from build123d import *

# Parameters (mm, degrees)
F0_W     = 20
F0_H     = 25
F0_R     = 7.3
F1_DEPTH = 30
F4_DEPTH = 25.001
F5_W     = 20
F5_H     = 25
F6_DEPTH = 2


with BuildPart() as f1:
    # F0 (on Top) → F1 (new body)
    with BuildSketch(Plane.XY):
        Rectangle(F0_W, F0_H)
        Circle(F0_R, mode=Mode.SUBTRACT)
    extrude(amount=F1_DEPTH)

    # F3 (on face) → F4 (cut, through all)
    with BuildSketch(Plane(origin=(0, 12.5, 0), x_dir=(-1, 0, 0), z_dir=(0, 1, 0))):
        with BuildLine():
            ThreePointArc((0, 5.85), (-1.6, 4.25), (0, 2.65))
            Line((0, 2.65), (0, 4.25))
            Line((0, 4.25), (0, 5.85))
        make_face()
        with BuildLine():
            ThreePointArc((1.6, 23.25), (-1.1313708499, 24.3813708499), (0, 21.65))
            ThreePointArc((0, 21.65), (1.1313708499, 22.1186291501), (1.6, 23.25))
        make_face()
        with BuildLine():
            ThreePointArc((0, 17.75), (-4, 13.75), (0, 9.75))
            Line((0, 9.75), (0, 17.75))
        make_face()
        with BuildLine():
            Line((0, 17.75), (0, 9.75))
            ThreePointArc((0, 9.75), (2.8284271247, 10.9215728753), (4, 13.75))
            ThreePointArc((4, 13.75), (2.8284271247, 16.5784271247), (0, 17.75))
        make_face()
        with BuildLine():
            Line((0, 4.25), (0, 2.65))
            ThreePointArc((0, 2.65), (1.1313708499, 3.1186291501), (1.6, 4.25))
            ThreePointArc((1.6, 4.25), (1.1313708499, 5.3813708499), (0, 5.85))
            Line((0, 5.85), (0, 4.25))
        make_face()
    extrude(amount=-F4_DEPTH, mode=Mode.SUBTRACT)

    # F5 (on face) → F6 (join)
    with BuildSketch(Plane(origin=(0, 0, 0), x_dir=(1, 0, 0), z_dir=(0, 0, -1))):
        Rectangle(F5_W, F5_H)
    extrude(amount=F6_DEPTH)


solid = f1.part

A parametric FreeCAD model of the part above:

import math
import FreeCAD as App
import Part
import Sketcher

V = App.Vector
Q = App.Units.Quantity


def add_polygon(sketch, points):
    """Adds a closed chain of lines whose ends are joined by coincident constraints."""
    first, n = sketch.GeometryCount, len(points)
    for a, b in zip(points, points[1:] + points[:1]):
        sketch.addGeometry(Part.LineSegment(App.Vector(*a, 0), App.Vector(*b, 0)), False)
    for i in range(n):
        sketch.addConstraint(Sketcher.Constraint("Coincident", first + i, 2, first + (i + 1) % n, 1))

doc = App.newDocument("Part")
body = doc.addObject("PartDesign::Body", "Body")

sketch1 = body.newObject("Sketcher::SketchObject", "Sketch")
sketch1.AttachmentSupport = (doc.getObject("XY_Plane"), [""])
sketch1.MapMode = "FlatFace"
add_polygon(sketch1, [(-10, 12), (-10, -12), (10, -12), (10, 12)])
sketch1.addGeometry(Part.Circle(V(0, 0, 0), V(0, 0, 1), 7), False)
sketch1.addConstraint([
    Sketcher.Constraint("Vertical", 0),
    Sketcher.Constraint("Horizontal", 1),
    Sketcher.Constraint("Vertical", 2),
    Sketcher.Constraint("Horizontal", 3),
    Sketcher.Constraint("Coincident", 4, 3, -1, 1),
    Sketcher.Constraint("Symmetric", 0, 2, 2, 2, -1, 1),
    Sketcher.Constraint("Diameter", 4, Q("14.6 mm")),
    Sketcher.Constraint("DistanceX", 1, 1, 1, 2, Q("20 mm")),
    Sketcher.Constraint("DistanceY", 0, 2, 0, 1, Q("25 mm")),
])
pad1 = body.newObject("PartDesign::Pad", "Pad")
pad1.Profile = sketch1
pad1.Length = 30

sketch2 = body.newObject("Sketcher::SketchObject", "Sketch001")
sketch2.AttachmentSupport = (doc.getObject("XZ_Plane"), [""])
sketch2.MapMode = "FlatFace"
sketch2.AttachmentOffset = App.Placement(V(0, 0, -12.5), App.Rotation())
sketch2.addGeometry([
    Part.ArcOfCircle(Part.Circle(V(0, 4.2, 0), V(0, 0, 1), 1.6), math.radians(-90), math.radians(90)),
    Part.ArcOfCircle(Part.Circle(V(0, 4.2, 0), V(0, 0, 1), 1.6), math.radians(180), math.radians(270)),
    Part.ArcOfCircle(Part.Circle(V(0, 4.2, 0), V(0, 0, 1), 1.6), math.radians(90), math.radians(180)),
    Part.ArcOfCircle(Part.Circle(V(0, 23.2, 0), V(0, 0, 1), 1.6), math.radians(-90), math.radians(180)),
    Part.ArcOfCircle(Part.Circle(V(0, 23.2, 0), V(0, 0, 1), 1.6), math.radians(180), math.radians(270)),
    Part.ArcOfCircle(Part.Circle(V(0, 13.8, 0), V(0, 0, 1), 4), math.radians(-90), math.radians(90)),
    Part.ArcOfCircle(Part.Circle(V(0, 13.8, 0), V(0, 0, 1), 4), math.radians(180), math.radians(270)),
    Part.ArcOfCircle(Part.Circle(V(0, 13.8, 0), V(0, 0, 1), 4), math.radians(90), math.radians(180)),
], False)
sketch2.addConstraint([
    Sketcher.Constraint("Tangent", 0, 1, 1, 2),
    Sketcher.Constraint("Tangent", 1, 1, 2, 2),
    Sketcher.Constraint("Tangent", 2, 1, 0, 2),
    Sketcher.Constraint("Tangent", 3, 1, 4, 2),
    Sketcher.Constraint("Coincident", 4, 1, 3, 2),
    Sketcher.Constraint("Tangent", 5, 1, 6, 2),
    Sketcher.Constraint("Tangent", 6, 1, 7, 2),
    Sketcher.Constraint("Tangent", 7, 1, 5, 2),
    Sketcher.Constraint("Equal", 2, 3),
    Sketcher.Constraint("PointOnObject", 0, 3, -2),
    Sketcher.Constraint("PointOnObject", 3, 3, -2),
    Sketcher.Constraint("PointOnObject", 5, 3, -2),
    Sketcher.Constraint("PointOnObject", 0, 1, -2),
    Sketcher.Constraint("PointOnObject", 2, 1, -2),
    Sketcher.Constraint("PointOnObject", 3, 1, -2),
    Sketcher.Constraint("PointOnObject", 5, 1, -2),
    Sketcher.Constraint("PointOnObject", 7, 1, -2),
    Sketcher.Constraint("Horizontal", 2, 3, 1, 1),
    Sketcher.Constraint("Horizontal", 3, 3, 4, 1),
    Sketcher.Constraint("Horizontal", 7, 3, 6, 1),
    Sketcher.Constraint("Radius", 5, Q("4 mm")),
    Sketcher.Constraint("Radius", 0, Q("1.6 mm")),
    Sketcher.Constraint("DistanceY", 0, 3, 3, 3, Q("19 mm")),
    Sketcher.Constraint("DistanceY", 0, 3, 5, 3, Q("9.5 mm")),
    Sketcher.Constraint("DistanceY", -1, 1, 0, 3, Q("4.25 mm")),
])
pocket1 = body.newObject("PartDesign::Pocket", "Pocket")
pocket1.Profile = sketch2
pocket1.Type = "ThroughAll"
pocket1.Reversed = True

sketch3 = body.newObject("Sketcher::SketchObject", "Sketch002")
sketch3.AttachmentSupport = (doc.getObject("XY_Plane"), [""])
sketch3.MapMode = "FlatFace"
add_polygon(sketch3, [(-10, -12), (-10, 12), (10, 12), (10, -12)])
sketch3.addConstraint([
    Sketcher.Constraint("Vertical", 0),
    Sketcher.Constraint("Horizontal", 1),
    Sketcher.Constraint("Vertical", 2),
    Sketcher.Constraint("Horizontal", 3),
    Sketcher.Constraint("Symmetric", 0, 2, 2, 2, -1, 1),
    Sketcher.Constraint("DistanceX", 1, 1, 1, 2, Q("20 mm")),
    Sketcher.Constraint("DistanceY", 0, 1, 0, 2, Q("25 mm")),
])
pad2 = body.newObject("PartDesign::Pad", "Pad001")
pad2.Profile = sketch3
pad2.Length = 2
pad2.Reversed = True

doc.recompute()
